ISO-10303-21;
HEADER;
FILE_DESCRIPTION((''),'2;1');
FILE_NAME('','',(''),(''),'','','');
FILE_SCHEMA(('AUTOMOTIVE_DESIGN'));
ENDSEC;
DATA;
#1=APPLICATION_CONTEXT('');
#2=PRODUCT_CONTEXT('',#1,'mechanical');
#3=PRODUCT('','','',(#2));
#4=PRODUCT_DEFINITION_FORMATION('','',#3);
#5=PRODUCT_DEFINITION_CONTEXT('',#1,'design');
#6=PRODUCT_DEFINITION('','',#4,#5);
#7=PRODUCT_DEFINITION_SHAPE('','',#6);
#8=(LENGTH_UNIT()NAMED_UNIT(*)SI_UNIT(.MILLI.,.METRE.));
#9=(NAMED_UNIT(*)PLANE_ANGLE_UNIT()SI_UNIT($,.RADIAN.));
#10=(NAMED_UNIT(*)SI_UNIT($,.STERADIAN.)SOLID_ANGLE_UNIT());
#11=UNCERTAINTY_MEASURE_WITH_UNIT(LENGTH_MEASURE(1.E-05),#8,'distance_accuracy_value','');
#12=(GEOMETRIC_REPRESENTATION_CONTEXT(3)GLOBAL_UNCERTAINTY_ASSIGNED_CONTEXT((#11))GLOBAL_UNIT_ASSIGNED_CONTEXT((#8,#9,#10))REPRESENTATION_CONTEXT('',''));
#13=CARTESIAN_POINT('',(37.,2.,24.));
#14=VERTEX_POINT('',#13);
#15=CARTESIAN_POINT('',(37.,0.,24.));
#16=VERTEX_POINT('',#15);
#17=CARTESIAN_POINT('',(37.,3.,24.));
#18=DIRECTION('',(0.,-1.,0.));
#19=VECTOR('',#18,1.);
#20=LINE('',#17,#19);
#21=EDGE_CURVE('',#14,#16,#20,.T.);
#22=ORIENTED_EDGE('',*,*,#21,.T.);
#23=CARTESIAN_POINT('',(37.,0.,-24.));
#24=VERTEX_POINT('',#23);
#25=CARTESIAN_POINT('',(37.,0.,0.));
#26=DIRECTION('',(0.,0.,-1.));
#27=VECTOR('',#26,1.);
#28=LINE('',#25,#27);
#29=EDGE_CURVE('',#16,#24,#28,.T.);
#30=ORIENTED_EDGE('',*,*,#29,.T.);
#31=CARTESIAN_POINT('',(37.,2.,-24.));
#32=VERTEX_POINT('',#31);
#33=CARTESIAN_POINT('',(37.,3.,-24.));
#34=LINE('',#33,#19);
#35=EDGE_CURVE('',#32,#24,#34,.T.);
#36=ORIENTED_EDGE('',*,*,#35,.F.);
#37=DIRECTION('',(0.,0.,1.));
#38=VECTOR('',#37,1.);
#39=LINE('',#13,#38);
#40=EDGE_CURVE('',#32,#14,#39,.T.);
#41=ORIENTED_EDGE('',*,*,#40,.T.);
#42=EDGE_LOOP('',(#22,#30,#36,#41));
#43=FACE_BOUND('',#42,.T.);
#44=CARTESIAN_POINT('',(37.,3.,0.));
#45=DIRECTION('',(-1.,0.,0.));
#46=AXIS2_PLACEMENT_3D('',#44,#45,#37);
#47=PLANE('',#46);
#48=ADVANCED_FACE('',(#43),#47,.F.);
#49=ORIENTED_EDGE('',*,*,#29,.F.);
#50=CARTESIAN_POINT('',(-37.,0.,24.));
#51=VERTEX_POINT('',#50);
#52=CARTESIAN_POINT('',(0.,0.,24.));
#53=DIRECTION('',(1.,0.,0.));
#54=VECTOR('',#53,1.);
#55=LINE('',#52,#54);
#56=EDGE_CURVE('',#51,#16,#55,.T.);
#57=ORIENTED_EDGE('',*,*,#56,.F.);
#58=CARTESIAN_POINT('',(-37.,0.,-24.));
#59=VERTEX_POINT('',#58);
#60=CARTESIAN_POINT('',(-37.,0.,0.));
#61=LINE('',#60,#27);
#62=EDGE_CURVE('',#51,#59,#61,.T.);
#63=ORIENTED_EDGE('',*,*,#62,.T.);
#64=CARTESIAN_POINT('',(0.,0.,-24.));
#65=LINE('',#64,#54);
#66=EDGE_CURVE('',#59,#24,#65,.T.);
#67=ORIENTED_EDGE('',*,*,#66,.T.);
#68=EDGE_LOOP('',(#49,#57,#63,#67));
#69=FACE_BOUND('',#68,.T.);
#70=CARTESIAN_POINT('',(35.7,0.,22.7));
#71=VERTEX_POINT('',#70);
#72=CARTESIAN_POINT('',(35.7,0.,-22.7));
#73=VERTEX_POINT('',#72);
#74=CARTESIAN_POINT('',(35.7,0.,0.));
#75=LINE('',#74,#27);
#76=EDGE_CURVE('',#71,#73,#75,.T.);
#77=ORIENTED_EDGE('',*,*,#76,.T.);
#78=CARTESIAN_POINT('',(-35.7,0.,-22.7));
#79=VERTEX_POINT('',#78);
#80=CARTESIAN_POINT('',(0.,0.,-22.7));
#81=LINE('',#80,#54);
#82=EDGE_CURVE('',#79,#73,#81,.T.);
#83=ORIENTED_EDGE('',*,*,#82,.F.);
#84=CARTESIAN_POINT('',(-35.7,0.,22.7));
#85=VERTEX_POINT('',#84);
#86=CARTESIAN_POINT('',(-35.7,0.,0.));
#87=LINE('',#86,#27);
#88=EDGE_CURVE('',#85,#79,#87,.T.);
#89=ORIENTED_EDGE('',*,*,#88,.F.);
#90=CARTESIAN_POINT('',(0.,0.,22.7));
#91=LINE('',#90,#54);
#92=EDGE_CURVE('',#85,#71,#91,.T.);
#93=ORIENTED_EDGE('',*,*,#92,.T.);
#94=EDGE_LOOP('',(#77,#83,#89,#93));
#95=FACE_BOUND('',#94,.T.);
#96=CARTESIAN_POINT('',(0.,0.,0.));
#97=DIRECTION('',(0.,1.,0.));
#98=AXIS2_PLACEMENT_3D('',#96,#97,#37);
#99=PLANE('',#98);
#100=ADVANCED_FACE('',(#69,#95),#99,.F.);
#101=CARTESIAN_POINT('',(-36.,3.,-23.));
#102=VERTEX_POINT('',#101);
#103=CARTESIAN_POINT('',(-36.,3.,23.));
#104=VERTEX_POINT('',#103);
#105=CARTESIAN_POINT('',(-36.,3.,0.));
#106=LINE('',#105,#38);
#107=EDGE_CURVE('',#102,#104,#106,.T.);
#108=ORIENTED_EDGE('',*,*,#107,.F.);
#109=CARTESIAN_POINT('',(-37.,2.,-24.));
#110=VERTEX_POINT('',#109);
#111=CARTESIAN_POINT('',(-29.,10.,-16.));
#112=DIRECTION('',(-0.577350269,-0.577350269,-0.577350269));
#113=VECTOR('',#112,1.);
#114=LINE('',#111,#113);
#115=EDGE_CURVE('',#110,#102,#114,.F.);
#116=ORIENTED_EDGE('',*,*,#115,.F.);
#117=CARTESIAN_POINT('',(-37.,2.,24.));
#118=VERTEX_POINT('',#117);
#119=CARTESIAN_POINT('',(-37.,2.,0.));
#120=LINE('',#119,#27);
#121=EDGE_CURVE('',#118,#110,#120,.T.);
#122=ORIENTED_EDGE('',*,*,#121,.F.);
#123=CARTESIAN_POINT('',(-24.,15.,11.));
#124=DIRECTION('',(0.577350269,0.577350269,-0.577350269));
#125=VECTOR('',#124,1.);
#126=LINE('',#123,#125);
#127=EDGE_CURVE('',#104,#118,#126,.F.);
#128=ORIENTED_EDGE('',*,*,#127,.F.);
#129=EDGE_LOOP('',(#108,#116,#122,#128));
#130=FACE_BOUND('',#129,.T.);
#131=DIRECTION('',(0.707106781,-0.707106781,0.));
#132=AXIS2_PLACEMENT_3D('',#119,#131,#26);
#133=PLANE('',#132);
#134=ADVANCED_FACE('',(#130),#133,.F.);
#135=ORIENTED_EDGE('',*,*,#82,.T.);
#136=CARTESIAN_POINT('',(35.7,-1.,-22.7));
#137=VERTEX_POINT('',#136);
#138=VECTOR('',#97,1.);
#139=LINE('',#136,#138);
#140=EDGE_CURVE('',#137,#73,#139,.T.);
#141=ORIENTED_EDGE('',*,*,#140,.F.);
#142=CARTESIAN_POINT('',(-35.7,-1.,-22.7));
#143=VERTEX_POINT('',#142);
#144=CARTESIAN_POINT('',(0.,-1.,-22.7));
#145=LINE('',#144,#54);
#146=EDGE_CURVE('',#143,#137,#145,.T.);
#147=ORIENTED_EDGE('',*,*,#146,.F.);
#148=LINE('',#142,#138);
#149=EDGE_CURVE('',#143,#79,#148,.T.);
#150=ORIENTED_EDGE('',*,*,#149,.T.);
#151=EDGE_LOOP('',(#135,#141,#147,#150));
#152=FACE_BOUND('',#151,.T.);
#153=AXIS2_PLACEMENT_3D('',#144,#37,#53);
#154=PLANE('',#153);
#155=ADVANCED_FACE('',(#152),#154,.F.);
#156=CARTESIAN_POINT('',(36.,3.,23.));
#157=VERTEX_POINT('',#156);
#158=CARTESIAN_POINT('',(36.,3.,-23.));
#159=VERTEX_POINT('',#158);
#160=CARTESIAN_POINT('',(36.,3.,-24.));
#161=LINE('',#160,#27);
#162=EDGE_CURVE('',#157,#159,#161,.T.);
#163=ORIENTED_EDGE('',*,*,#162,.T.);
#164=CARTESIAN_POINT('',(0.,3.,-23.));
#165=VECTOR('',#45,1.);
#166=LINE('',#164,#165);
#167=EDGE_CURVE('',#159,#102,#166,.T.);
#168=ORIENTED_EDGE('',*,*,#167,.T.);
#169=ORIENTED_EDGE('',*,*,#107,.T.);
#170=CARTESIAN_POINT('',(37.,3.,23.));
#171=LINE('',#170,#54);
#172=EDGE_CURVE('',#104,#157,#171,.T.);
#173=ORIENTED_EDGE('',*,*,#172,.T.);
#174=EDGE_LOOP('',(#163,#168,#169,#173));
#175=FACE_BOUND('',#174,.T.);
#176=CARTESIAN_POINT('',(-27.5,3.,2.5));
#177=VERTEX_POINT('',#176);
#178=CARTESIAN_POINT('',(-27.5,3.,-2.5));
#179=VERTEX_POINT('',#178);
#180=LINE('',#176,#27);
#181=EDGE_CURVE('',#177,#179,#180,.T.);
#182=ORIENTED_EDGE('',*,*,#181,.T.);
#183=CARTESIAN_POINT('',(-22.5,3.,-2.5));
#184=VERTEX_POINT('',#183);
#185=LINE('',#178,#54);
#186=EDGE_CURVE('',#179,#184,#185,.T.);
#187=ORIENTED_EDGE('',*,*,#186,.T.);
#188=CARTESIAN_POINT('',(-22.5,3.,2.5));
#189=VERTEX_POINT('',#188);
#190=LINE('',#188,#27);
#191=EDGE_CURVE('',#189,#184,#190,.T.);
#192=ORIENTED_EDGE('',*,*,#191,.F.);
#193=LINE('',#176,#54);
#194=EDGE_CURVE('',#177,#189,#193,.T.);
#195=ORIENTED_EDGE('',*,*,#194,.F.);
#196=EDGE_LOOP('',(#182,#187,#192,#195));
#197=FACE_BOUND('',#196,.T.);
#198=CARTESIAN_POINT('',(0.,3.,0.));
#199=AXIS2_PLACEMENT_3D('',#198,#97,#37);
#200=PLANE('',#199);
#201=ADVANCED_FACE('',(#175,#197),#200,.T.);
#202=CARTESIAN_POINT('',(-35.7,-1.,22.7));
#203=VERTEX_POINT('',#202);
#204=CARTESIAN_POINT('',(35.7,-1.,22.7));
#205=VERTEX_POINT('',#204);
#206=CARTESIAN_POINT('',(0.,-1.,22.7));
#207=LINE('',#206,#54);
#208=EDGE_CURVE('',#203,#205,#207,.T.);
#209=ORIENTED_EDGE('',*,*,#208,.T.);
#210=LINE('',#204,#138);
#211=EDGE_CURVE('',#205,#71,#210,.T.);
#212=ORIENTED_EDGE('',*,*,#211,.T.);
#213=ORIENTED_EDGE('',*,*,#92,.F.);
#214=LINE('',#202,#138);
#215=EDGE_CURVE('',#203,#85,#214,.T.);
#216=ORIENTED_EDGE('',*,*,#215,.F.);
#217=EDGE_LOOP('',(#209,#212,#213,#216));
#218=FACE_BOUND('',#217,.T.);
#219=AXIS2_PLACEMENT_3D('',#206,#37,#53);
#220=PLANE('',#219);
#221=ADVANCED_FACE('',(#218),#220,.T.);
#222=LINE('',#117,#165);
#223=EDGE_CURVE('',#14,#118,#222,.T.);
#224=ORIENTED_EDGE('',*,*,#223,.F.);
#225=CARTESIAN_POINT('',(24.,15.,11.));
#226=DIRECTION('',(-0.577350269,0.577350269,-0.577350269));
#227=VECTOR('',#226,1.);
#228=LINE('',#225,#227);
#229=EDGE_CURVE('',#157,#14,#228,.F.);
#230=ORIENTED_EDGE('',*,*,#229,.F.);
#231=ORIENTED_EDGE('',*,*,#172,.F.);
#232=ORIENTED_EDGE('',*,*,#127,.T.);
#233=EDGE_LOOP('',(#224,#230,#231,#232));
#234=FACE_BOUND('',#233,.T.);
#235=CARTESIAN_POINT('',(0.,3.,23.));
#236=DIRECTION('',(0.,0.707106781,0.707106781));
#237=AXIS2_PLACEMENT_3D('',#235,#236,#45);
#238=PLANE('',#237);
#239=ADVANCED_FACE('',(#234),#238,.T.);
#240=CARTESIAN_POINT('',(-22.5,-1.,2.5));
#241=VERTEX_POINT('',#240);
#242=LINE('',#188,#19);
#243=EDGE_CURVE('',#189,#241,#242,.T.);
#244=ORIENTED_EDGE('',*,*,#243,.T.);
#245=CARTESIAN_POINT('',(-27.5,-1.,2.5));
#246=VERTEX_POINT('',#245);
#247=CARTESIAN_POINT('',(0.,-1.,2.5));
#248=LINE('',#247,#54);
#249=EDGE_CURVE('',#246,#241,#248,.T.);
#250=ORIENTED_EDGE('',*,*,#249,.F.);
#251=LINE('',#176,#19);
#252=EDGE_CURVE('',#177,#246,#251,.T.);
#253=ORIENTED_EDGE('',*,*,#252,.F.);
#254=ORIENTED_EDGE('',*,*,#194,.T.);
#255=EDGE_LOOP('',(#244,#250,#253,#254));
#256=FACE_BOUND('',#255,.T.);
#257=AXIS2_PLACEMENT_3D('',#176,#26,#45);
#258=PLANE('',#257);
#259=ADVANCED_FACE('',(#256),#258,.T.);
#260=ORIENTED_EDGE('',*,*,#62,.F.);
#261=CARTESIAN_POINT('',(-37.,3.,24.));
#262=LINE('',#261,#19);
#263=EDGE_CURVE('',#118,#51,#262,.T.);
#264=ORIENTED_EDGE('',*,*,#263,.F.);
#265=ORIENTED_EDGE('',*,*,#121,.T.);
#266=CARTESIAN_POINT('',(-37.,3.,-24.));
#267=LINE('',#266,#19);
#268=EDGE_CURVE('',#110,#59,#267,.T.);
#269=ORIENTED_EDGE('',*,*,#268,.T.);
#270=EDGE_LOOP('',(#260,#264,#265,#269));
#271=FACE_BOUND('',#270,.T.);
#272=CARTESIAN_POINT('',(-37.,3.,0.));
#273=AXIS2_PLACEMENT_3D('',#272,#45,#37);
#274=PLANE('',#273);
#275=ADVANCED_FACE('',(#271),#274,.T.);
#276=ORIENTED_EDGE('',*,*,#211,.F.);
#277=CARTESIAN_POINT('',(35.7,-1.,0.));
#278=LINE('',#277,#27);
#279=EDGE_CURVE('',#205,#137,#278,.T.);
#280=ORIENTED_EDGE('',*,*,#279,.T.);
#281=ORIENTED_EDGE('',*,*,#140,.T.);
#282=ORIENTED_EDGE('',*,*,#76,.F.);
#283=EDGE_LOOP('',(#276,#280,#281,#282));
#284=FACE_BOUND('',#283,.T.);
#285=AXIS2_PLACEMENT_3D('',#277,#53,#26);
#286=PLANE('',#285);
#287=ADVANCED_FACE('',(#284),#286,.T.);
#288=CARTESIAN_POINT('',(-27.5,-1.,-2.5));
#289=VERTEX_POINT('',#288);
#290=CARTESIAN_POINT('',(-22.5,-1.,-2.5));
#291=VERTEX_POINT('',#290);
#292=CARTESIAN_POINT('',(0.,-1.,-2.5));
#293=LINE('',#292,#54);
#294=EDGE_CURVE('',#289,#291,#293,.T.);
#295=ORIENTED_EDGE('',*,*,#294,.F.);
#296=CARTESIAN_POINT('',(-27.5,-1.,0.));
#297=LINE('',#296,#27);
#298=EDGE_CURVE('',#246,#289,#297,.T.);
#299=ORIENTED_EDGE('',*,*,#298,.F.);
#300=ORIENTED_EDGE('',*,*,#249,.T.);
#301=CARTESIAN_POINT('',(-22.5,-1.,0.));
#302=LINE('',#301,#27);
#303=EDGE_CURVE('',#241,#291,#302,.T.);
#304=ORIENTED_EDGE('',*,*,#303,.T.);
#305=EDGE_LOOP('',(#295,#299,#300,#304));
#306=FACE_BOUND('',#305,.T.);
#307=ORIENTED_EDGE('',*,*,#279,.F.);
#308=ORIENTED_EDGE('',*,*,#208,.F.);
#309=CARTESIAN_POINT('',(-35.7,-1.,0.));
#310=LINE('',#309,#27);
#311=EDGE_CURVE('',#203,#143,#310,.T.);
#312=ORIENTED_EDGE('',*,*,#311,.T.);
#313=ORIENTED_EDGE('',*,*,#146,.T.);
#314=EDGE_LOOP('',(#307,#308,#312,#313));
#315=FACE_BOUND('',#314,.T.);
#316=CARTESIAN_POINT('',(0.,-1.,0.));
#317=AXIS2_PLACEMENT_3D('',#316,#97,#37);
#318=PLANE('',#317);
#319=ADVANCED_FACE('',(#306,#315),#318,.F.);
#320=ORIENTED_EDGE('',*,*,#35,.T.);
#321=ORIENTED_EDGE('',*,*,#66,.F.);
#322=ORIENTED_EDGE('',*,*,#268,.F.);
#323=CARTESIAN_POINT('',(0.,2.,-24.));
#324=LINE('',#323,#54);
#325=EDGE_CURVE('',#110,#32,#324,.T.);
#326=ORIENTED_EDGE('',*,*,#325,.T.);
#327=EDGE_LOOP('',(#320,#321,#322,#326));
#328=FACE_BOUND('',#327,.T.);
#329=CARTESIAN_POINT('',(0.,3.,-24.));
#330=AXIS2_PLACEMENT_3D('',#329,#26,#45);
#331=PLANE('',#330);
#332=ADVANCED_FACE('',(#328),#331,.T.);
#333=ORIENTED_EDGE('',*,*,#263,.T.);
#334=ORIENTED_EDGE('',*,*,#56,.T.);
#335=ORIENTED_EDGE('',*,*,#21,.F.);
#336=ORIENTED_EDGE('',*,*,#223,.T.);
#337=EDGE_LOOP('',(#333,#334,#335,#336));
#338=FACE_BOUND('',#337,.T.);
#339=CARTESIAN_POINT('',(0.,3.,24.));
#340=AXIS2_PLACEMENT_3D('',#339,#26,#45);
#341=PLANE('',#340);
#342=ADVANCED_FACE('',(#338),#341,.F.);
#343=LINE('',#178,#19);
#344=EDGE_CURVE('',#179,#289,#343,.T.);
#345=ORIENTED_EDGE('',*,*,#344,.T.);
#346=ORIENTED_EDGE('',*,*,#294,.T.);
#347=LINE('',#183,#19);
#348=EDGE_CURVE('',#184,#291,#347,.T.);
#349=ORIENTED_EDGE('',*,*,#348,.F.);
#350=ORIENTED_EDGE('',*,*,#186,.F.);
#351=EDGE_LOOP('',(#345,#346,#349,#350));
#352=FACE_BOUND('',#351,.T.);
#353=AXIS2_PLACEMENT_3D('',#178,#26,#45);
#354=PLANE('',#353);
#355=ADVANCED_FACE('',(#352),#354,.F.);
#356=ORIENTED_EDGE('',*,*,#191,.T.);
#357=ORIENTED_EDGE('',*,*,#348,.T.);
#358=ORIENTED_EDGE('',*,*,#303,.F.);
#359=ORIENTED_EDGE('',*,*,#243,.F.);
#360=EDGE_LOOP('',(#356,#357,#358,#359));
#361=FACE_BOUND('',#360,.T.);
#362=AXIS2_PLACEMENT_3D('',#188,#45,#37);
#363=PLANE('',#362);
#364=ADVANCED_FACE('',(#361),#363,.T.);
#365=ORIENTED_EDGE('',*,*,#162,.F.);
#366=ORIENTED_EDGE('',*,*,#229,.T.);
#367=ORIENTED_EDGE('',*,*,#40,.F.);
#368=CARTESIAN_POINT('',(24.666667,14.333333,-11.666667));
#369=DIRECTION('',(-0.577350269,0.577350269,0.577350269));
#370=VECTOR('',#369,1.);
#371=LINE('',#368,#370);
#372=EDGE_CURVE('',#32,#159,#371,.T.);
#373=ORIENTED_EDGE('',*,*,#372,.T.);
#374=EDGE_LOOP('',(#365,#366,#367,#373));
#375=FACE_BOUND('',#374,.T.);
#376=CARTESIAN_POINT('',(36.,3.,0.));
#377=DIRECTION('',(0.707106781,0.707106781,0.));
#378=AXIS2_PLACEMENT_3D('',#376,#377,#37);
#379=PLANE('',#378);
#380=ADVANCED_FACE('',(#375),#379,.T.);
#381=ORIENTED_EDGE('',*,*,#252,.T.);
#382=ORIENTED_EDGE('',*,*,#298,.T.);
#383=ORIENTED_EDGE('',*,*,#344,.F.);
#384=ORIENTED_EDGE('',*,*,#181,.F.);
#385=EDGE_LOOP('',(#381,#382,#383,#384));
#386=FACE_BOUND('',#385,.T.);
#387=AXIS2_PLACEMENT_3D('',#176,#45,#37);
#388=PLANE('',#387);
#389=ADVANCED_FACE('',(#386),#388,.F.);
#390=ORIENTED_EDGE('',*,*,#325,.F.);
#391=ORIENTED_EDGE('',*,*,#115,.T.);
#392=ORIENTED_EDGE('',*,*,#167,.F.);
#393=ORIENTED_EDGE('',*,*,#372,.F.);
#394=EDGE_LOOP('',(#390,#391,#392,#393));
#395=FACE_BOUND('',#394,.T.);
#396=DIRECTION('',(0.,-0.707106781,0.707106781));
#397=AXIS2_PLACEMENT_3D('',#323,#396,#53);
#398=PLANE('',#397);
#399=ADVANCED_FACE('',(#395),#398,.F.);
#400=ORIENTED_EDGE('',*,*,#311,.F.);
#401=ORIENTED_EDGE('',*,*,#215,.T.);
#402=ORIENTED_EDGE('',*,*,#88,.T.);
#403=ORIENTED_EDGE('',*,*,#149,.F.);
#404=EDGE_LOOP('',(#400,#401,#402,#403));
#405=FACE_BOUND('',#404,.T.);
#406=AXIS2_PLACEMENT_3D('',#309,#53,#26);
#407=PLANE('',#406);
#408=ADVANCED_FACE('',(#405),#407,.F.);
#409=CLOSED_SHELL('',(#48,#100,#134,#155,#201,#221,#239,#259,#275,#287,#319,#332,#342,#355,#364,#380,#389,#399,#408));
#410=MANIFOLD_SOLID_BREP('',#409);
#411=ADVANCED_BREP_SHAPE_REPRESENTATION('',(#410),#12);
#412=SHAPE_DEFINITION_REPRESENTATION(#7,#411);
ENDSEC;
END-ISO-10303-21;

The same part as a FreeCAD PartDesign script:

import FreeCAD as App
import Part
import Sketcher
from FreeCAD import Vector


def edges_at(feature, points):
    """Names of the edges that pass closest to the given points."""
    edges = feature.Shape.Edges
    near = lambda p: min(range(len(edges)), key=lambda i: edges[i].distToShape(Part.Vertex(*p))[0])
    return sorted({f"Edge{near(p) + 1}" for p in points})


def add_polygon(sketch, points):
    """Adds a closed chain of lines whose ends are joined by coincident constraints."""
    first, n = sketch.GeometryCount, len(points)
    for a, b in zip(points, points[1:] + points[:1]):
        sketch.addGeometry(Part.LineSegment(App.Vector(*a, 0), App.Vector(*b, 0)), False)
    for i in range(n):
        sketch.addConstraint(Sketcher.Constraint("Coincident", first + i, 2, first + (i + 1) % n, 1))

doc = App.newDocument("Part")
body = doc.addObject("PartDesign::Body", "Body")

# Sketch on XZ plane
sketch1 = body.newObject("Sketcher::SketchObject", "Sketch")
sketch1.AttachmentSupport = (doc.getObject("XZ_Plane"), [""])
sketch1.MapMode = "FlatFace"
add_polygon(sketch1, [(-37, -24), (-37, 24), (37, 24), (37, -24)])  # lines 0-3
add_polygon(sketch1, [(-22, 2), (-28, 2), (-28, -2), (-22, -2)])  # lines 4-7
sketch1.addConstraint(Sketcher.Constraint("Vertical", 0))
sketch1.addConstraint(Sketcher.Constraint("Horizontal", 1))
sketch1.addConstraint(Sketcher.Constraint("Vertical", 2))
sketch1.addConstraint(Sketcher.Constraint("Horizontal", 3))
sketch1.addConstraint(Sketcher.Constraint("Horizontal", 4))
sketch1.addConstraint(Sketcher.Constraint("Vertical", 5))
sketch1.addConstraint(Sketcher.Constraint("Horizontal", 6))
sketch1.addConstraint(Sketcher.Constraint("Vertical", 7))
sketch1.addConstraint(Sketcher.Constraint("Symmetric", 0, 2, 2, 2, -1, 1))
sketch1.addConstraint(Sketcher.Constraint("Equal", 6, 5))
sketch1.addConstraint(Sketcher.Constraint("DistanceX", 1, 1, 1, 2, 74.0))
sketch1.addConstraint(Sketcher.Constraint("DistanceX", 4, 2, 4, 1, 5.0))
sketch1.addConstraint(Sketcher.Constraint("DistanceY", 0, 1, 0, 2, 48.0))
sketch1.addConstraint(Sketcher.Constraint("DistanceX", 4, 2, -1, 1, 27.5))
sketch1.addConstraint(Sketcher.Constraint("DistanceY", -1, 1, 4, 2, 2.5))
pad1 = body.newObject("PartDesign::Pad", "Pad")
pad1.Profile = sketch1
pad1.Length = 3
pad1.Reversed = True

# Sketch on XZ plane
sketch2 = body.newObject("Sketcher::SketchObject", "Sketch001")
sketch2.AttachmentSupport = (doc.getObject("XZ_Plane"), [""])
sketch2.MapMode = "FlatFace"
sketch2.AttachmentOffset = App.Placement(Vector(0, 0, 1), App.Rotation())
add_polygon(sketch2, [(-36, -23), (-36, 23), (36, 23), (36, -23)])  # lines 0-3
add_polygon(sketch2, [(-22, 2), (-28, 2), (-28, -2), (-22, -2)])  # lines 4-7
sketch2.addConstraint(Sketcher.Constraint("Vertical", 0))
sketch2.addConstraint(Sketcher.Constraint("Horizontal", 1))
sketch2.addConstraint(Sketcher.Constraint("Vertical", 2))
sketch2.addConstraint(Sketcher.Constraint("Horizontal", 3))
sketch2.addConstraint(Sketcher.Constraint("Horizontal", 4))
sketch2.addConstraint(Sketcher.Constraint("Vertical", 5))
sketch2.addConstraint(Sketcher.Constraint("Horizontal", 6))
sketch2.addConstraint(Sketcher.Constraint("Vertical", 7))
sketch2.addConstraint(Sketcher.Constraint("Symmetric", 0, 2, 2, 2, -1, 1))
sketch2.addConstraint(Sketcher.Constraint("Equal", 6, 5))
sketch2.addConstraint(Sketcher.Constraint("DistanceX", 4, 2, 4, 1, 5.0))
sketch2.addConstraint(Sketcher.Constraint("DistanceX", 1, 1, 1, 2, 71.4))
sketch2.addConstraint(Sketcher.Constraint("DistanceY", 0, 1, 0, 2, 45.4))
sketch2.addConstraint(Sketcher.Constraint("DistanceX", 4, 2, -1, 1, 27.5))
sketch2.addConstraint(Sketcher.Constraint("DistanceY", -1, 1, 4, 2, 2.5))
pad2 = body.newObject("PartDesign::Pad", "Pad001")
pad2.Profile = sketch2
pad2.Length = 1
pad2.Reversed = True
doc.recompute()

chamfer = body.newObject("PartDesign::Chamfer", "Chamfer")
chamfer.Base = (pad2, edges_at(pad2, [
    (0, 3, 24),
    (37, 3, 0),
    (0, 3, -24),
    (-37, 3, 0),
]))
chamfer.Size = 1

doc.recompute()
